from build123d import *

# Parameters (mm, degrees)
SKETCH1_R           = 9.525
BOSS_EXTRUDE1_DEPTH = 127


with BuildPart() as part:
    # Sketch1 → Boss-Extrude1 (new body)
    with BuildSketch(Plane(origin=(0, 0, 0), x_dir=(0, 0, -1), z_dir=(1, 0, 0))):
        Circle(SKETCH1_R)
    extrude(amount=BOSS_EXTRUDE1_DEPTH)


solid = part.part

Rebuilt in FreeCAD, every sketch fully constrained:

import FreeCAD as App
import Part
import Sketcher
Q = App.Units.Quantity

doc = App.newDocument("Part")
body = doc.addObject("PartDesign::Body", "Body")

sketch1 = doc.addObject("Sketcher::SketchObject", "Sketch")
body.addObject(sketch1)
sketch1.AttachmentSupport = (doc.YZ_Plane, [""])
sketch1.MapMode = "FlatFace"
sketch1.addGeometry(Part.Circle(App.Vector(0, 0, 0), App.Vector(0, 0, 1), 10), False)
sketch1.addConstraint(Sketcher.Constraint("Coincident", 0, 3, -1, 1))
sketch1.addConstraint(Sketcher.Constraint("Diameter", 0, Q("0.75 in")))
pad1 = doc.addObject("PartDesign::Pad", "Pad")
body.addObject(pad1)
pad1.Profile = sketch1
pad1.Length = Q("5 in")

doc.recompute()
